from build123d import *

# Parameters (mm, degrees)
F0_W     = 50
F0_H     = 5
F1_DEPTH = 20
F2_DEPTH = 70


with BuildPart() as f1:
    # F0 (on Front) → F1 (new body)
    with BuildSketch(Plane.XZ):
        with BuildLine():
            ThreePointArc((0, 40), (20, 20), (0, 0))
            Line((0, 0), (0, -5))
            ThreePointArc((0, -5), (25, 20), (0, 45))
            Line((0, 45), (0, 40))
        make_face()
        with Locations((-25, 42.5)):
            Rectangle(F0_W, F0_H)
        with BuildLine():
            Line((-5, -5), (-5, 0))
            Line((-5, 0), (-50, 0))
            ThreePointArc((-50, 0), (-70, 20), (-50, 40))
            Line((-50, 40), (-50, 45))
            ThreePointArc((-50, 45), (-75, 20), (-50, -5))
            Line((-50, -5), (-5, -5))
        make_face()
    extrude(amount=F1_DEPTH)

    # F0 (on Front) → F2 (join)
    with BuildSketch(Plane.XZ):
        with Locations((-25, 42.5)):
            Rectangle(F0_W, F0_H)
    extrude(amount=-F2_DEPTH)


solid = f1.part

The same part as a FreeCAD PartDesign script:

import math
import FreeCAD as App
import Part
import Sketcher
from FreeCAD import Vector
Q = App.Units.Quantity

doc = App.newDocument("Part")
params = doc.addObject("Spreadsheet::Sheet", "Params")
for row, (alias, value) in enumerate([
    ("sketch1_radius", "20 mm"),
    ("sketch1_radius2", "25 mm"),
    ("sketch1_width", "50 mm"),
    ("sketch1_width2", "45 mm"),
    ("pad1_length", "20 mm"),
    ("sketch2_width", "50 mm"),
    ("sketch2_height", "5 mm"),
    ("pad2_length", "70 mm"),
], start=1):
    params.set(f"A{row}", alias)
    params.set(f"B{row}", "=" + value)
    params.setAlias(f"B{row}", alias)

body = doc.addObject("PartDesign::Body", "Body")

# Sketch on XZ plane
sketch1 = body.newObject("Sketcher::SketchObject", "Sketch")
sketch1.AttachmentSupport = (doc.getObject("XZ_Plane"), [""])
sketch1.MapMode = "FlatFace"
sketch1.addGeometry(Part.ArcOfCircle(Part.Circle(Vector(0, 20, 0), Vector(0, 0, 1), 20), math.radians(-90), math.radians(90)), False)
sketch1.addGeometry(Part.LineSegment(Vector(0, 0, 0), Vector(0, -5, 0)), False)
sketch1.addGeometry(Part.ArcOfCircle(Part.Circle(Vector(0, 20, 0), Vector(0, 0, 1), 25), math.radians(-90), math.radians(90)), False)
sketch1.addGeometry(Part.LineSegment(Vector(0, 45, 0), Vector(-50, 45, 0)), False)
sketch1.addGeometry(Part.ArcOfCircle(Part.Circle(Vector(-50, 20, 0), Vector(0, 0, 1), 25), math.radians(90), math.radians(270)), False)
sketch1.addGeometry(Part.LineSegment(Vector(-50, -5, 0), Vector(-5, -5, 0)), False)
sketch1.addGeometry(Part.LineSegment(Vector(-5, -5, 0), Vector(-5, 0, 0)), False)
sketch1.addGeometry(Part.LineSegment(Vector(-5, 0, 0), Vector(-50, 0, 0)), False)
sketch1.addGeometry(Part.ArcOfCircle(Part.Circle(Vector(-50, 20, 0), Vector(0, 0, 1), 20), math.radians(90), math.radians(270)), False)
sketch1.addGeometry(Part.LineSegment(Vector(-50, 40, 0), Vector(0, 40, 0)), False)
sketch1.addConstraint(Sketcher.Constraint("Coincident", 0, 1, 1, 1))
sketch1.addConstraint(Sketcher.Constraint("Coincident", 1, 2, 2, 1))
sketch1.addConstraint(Sketcher.Constraint("Tangent", 2, 2, 3, 1))
sketch1.addConstraint(Sketcher.Constraint("Tangent", 3, 2, 4, 1))
sketch1.addConstraint(Sketcher.Constraint("Tangent", 4, 2, 5, 1))
sketch1.addConstraint(Sketcher.Constraint("Coincident", 5, 2, 6, 1))
sketch1.addConstraint(Sketcher.Constraint("Coincident", 6, 2, 7, 1))
sketch1.addConstraint(Sketcher.Constraint("Tangent", 7, 2, 8, 2))
sketch1.addConstraint(Sketcher.Constraint("Tangent", 8, 1, 9, 1))
sketch1.addConstraint(Sketcher.Constraint("Tangent", 9, 2, 0, 2))
sketch1.addConstraint(Sketcher.Constraint("Vertical", 1))
sketch1.addConstraint(Sketcher.Constraint("Horizontal", 3))
sketch1.addConstraint(Sketcher.Constraint("Horizontal", 5))
sketch1.addConstraint(Sketcher.Constraint("Vertical", 6))
sketch1.addConstraint(Sketcher.Constraint("Horizontal", 7))
sketch1.addConstraint(Sketcher.Constraint("Horizontal", 9))
sketch1.addConstraint(Sketcher.Constraint("Coincident", 0, 1, -1, 1))
sketch1.addConstraint(Sketcher.Constraint("Coincident", 2, 3, 0, 3))
sketch1.addConstraint(Sketcher.Constraint("Coincident", 8, 3, 4, 3))
sketch1.addConstraint(Sketcher.Constraint("Equal", 2, 4))
sketch1.addConstraint(Sketcher.Constraint("PointOnObject", 0, 3, -2))
sketch1.addConstraint(Sketcher.Constraint("Radius", 0, Q("20 mm")))
sketch1.addConstraint(Sketcher.Constraint("Radius", 2, Q("25 mm")))
sketch1.addConstraint(Sketcher.Constraint("DistanceX", 3, 2, 3, 1, Q("50 mm")))
sketch1.addConstraint(Sketcher.Constraint("DistanceX", 5, 1, 5, 2, Q("45 mm")))
sketch1.setExpression("Constraints[21]", "Params.sketch1_radius")
sketch1.setExpression("Constraints[22]", "Params.sketch1_radius2")
sketch1.setExpression("Constraints[23]", "Params.sketch1_width")
sketch1.setExpression("Constraints[24]", "Params.sketch1_width2")
pad1 = body.newObject("PartDesign::Pad", "Pad")
pad1.Profile = sketch1
pad1.setExpression("Length", "Params.pad1_length")

# Sketch on XZ plane
sketch2 = body.newObject("Sketcher::SketchObject", "Sketch001")
sketch2.AttachmentSupport = (doc.getObject("XZ_Plane"), [""])
sketch2.MapMode = "FlatFace"
sketch2.addGeometry(Part.LineSegment(Vector(-50, 45, 0), Vector(-50, 40, 0)), False)
sketch2.addGeometry(Part.LineSegment(Vector(-50, 40, 0), Vector(0, 40, 0)), False)
sketch2.addGeometry(Part.LineSegment(Vector(0, 40, 0), Vector(0, 45, 0)), False)
sketch2.addGeometry(Part.LineSegment(Vector(0, 45, 0), Vector(-50, 45, 0)), False)
sketch2.addConstraint(Sketcher.Constraint("Coincident", 0, 2, 1, 1))
sketch2.addConstraint(Sketcher.Constraint("Coincident", 1, 2, 2, 1))
sketch2.addConstraint(Sketcher.Constraint("Coincident", 2, 2, 3, 1))
sketch2.addConstraint(Sketcher.Constraint("Coincident", 3, 2, 0, 1))
sketch2.addConstraint(Sketcher.Constraint("Vertical", 0))
sketch2.addConstraint(Sketcher.Constraint("Horizontal", 1))
sketch2.addConstraint(Sketcher.Constraint("Vertical", 2))
sketch2.addConstraint(Sketcher.Constraint("Horizontal", 3))
sketch2.addConstraint(Sketcher.Constraint("PointOnObject", 1, 2, -2))
sketch2.addConstraint(Sketcher.Constraint("DistanceX", 1, 1, 1, 2, Q("50 mm")))
sketch2.addConstraint(Sketcher.Constraint("DistanceY", 0, 2, 0, 1, Q("5 mm")))
sketch2.addConstraint(Sketcher.Constraint("DistanceY", -1, 1, 0, 2, Q("40 mm")))
sketch2.setExpression("Constraints[9]", "Params.sketch2_width")
sketch2.setExpression("Constraints[10]", "Params.sketch2_height")
pad2 = body.newObject("PartDesign::Pad", "Pad001")
pad2.Profile = sketch2
pad2.setExpression("Length", "Params.pad2_length")
pad2.Reversed = True

doc.recompute()
